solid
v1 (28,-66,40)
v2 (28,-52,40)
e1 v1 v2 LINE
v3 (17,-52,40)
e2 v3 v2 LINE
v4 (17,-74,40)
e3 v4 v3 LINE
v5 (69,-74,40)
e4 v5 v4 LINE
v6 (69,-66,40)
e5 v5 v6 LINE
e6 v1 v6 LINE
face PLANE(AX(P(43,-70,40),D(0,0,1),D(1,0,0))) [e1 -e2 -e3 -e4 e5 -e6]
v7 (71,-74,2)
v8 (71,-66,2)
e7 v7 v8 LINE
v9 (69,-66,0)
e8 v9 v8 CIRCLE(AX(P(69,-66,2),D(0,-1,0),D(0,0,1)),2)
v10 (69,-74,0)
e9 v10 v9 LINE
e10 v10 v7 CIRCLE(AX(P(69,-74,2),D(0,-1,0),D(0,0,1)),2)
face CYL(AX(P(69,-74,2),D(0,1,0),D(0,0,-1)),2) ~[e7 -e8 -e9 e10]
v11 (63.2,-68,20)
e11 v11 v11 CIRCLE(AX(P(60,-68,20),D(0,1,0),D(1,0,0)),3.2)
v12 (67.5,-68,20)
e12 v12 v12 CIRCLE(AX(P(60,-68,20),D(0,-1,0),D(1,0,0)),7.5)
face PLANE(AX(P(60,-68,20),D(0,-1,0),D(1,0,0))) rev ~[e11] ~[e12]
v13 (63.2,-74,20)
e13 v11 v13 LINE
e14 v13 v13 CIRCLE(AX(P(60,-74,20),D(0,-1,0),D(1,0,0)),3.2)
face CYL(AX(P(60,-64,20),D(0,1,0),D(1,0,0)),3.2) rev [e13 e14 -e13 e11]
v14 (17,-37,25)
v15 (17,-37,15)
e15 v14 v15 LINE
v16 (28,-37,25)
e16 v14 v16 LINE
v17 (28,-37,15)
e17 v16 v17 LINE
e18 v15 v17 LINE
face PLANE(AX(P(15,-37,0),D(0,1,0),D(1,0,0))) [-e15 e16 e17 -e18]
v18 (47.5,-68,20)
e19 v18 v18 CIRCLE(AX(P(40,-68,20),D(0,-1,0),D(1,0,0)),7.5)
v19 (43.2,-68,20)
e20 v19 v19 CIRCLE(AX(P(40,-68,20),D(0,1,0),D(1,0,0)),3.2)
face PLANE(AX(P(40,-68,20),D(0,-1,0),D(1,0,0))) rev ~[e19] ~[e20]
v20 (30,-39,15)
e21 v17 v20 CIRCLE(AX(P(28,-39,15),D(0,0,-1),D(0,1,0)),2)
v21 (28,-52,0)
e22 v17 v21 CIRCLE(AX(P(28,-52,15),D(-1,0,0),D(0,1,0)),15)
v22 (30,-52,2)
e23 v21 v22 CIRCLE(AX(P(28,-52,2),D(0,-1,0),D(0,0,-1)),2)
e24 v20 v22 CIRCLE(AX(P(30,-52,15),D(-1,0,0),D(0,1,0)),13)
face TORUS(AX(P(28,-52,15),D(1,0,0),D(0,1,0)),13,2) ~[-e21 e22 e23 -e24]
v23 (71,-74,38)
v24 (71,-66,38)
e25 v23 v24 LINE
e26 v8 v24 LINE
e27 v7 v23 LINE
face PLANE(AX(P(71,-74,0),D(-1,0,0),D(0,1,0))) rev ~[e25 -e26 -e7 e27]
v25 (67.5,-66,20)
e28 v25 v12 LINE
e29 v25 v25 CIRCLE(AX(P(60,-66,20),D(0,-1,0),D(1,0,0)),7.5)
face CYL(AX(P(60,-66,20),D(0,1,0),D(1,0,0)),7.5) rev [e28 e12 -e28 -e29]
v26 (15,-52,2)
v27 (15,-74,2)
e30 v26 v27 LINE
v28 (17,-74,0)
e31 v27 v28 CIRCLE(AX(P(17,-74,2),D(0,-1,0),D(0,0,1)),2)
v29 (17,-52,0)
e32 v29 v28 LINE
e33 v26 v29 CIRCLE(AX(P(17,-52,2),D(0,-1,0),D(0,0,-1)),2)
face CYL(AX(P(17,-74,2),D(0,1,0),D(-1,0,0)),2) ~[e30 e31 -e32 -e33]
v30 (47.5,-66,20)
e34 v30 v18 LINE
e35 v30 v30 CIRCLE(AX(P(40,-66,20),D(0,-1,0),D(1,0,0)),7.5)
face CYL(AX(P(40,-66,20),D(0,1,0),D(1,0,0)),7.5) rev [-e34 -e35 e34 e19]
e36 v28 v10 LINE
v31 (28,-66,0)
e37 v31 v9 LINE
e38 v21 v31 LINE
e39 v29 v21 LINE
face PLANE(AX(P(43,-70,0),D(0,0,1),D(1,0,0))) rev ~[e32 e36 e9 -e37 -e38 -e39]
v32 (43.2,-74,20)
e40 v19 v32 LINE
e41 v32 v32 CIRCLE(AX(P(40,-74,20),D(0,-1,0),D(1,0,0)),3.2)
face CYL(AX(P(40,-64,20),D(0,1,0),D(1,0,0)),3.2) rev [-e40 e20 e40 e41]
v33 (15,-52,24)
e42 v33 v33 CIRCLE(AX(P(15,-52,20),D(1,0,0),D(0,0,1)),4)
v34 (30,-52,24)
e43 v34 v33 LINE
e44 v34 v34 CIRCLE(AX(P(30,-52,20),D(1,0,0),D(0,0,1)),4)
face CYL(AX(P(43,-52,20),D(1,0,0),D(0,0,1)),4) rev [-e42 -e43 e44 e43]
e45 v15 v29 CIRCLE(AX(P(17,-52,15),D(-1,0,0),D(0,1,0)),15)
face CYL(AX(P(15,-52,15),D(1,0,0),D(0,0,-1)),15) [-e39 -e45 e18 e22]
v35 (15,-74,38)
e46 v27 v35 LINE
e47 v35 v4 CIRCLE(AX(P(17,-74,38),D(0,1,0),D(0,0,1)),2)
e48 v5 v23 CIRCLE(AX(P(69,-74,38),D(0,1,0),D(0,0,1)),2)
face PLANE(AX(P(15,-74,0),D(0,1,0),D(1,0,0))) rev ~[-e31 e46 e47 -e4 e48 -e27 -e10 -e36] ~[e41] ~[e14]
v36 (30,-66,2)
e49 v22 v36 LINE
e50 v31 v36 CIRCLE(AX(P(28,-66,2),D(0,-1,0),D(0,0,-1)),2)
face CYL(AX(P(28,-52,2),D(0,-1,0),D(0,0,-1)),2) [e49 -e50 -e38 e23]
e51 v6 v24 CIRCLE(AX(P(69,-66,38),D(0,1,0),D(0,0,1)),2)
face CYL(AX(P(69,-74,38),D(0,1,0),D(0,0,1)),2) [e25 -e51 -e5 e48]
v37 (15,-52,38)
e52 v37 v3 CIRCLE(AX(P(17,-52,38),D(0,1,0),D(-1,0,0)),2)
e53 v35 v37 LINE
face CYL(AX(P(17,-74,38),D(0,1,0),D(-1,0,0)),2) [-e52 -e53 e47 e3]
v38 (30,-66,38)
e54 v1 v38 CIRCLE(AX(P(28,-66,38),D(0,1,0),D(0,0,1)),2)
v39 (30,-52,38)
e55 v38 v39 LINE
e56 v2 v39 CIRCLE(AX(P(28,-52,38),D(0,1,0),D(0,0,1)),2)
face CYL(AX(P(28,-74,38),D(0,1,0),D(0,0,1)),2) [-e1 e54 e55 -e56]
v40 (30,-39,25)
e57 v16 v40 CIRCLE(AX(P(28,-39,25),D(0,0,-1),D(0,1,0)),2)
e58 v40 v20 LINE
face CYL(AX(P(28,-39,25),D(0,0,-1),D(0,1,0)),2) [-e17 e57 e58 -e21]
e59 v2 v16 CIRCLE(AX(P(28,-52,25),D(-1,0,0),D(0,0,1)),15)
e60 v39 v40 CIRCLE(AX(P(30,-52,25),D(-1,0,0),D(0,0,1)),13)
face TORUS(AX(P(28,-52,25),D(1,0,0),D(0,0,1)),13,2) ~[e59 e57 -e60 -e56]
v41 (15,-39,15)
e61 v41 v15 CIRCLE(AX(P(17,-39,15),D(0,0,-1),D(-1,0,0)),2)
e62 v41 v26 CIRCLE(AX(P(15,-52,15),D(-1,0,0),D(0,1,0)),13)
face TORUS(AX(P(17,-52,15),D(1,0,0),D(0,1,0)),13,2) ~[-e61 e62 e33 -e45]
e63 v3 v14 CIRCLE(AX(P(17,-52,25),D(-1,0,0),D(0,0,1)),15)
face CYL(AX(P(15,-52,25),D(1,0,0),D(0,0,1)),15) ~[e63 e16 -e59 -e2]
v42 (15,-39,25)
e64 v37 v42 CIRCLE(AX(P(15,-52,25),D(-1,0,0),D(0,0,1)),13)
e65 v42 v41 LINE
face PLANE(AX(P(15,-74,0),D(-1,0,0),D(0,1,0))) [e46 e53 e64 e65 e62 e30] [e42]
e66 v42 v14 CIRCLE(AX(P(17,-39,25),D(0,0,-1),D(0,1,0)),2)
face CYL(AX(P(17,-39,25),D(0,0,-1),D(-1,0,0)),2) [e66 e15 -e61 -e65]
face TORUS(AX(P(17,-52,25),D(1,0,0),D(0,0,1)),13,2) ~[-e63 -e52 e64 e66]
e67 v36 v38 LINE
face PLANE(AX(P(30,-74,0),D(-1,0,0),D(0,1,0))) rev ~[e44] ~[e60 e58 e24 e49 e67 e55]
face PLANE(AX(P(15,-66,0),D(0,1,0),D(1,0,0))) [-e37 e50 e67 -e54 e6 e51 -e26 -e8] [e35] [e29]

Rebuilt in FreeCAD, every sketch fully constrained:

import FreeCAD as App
import Part
import Sketcher
Q = App.Units.Quantity


def edges_at(feature, points):
    """Names of the edges that pass closest to the given points."""
    edges = feature.Shape.Edges
    near = lambda p: min(range(len(edges)), key=lambda i: edges[i].distToShape(Part.Vertex(*p))[0])
    return sorted({f"Edge{near(p) + 1}" for p in points})


def add_polygon(sketch, points):
    """Adds a closed chain of lines whose ends are joined by coincident constraints."""
    first, n = sketch.GeometryCount, len(points)
    for a, b in zip(points, points[1:] + points[:1]):
        sketch.addGeometry(Part.LineSegment(App.Vector(*a, 0), App.Vector(*b, 0)), False)
    for i in range(n):
        sketch.addConstraint(Sketcher.Constraint("Coincident", first + i, 2, first + (i + 1) % n, 1))

doc = App.newDocument("Part")
params = doc.addObject("Spreadsheet::Sheet", "Params")
for row, (alias, value) in enumerate([
    ("sketch1_diameter", "8 mm"),
    ("pad1_length", "81 mm"),
    ("sketch2_width", "15 mm"),
    ("sketch2_height", "37 mm"),
    ("pad2_length", "40 mm"),
    ("fillet_radius", "15 mm"),
    ("fillet2_radius", "2 mm"),
    ("sketch3_diameter", "6.4 mm"),
    ("pad3_length", "10 mm"),
    ("sketch4_diameter", "6.4 mm"),
    ("pad4_length", "10 mm"),
    ("sketch5_diameter", "15 mm"),
    ("pad5_length", "2 mm"),
    ("sketch6_diameter", "15 mm"),
    ("pad6_length", "2 mm"),
    ("sketch7_width", "56 mm"),
    ("sketch7_height", "8 mm"),
    ("pad7_length", "40 mm"),
    ("fillet3_radius", "2 mm"),
], start=1):
    params.set(f"A{row}", alias)
    params.set(f"B{row}", "=" + value)
    params.setAlias(f"B{row}", alias)

body = doc.addObject("PartDesign::Body", "Body")

sketch1 = doc.addObject("Sketcher::SketchObject", "Sketch")
body.addObject(sketch1)
sketch1.AttachmentSupport = (doc.YZ_Plane, [""])
sketch1.MapMode = "FlatFace"
sketch1.AttachmentOffset = App.Placement(App.Vector(0, 0, 43), App.Rotation())
sketch1.addGeometry(Part.Circle(App.Vector(-52, 20, 0), App.Vector(0, 0, 1), 4), False)
sketch1.addConstraint([
    Sketcher.Constraint("Diameter", 0, Q("8 mm")),
    Sketcher.Constraint("DistanceX", 0, 3, -1, 1, Q("52 mm")),
    Sketcher.Constraint("DistanceY", -1, 1, 0, 3, Q("20 mm")),
])
sketch1.setExpression("Constraints[0]", "Params.sketch1_diameter")
pad1 = doc.addObject("PartDesign::Pad", "Pad")
body.addObject(pad1)
pad1.Profile = sketch1
pad1.setExpression("Length", "Params.pad1_length")
pad1.Reversed = True
body2 = doc.addObject("PartDesign::Body", "Body001")

sketch2 = doc.addObject("Sketcher::SketchObject", "Sketch001")
body2.addObject(sketch2)
sketch2.AttachmentSupport = (doc.getObject("XY_Plane001"), [""])
sketch2.MapMode = "FlatFace"
add_polygon(sketch2, [(15, -37), (15, -74), (30, -74), (30, -37)])
sketch2.addConstraint([
    Sketcher.Constraint("Vertical", 0),
    Sketcher.Constraint("Horizontal", 1),
    Sketcher.Constraint("Vertical", 2),
    Sketcher.Constraint("Horizontal", 3),
    Sketcher.Constraint("DistanceX", 1, 1, 1, 2, Q("15 mm")),
    Sketcher.Constraint("DistanceY", 0, 2, 0, 1, Q("37 mm")),
    Sketcher.Constraint("DistanceX", -1, 1, 0, 2, Q("15 mm")),
    Sketcher.Constraint("DistanceY", 0, 2, -1, 1, Q("74 mm")),
])
sketch2.setExpression("Constraints[8]", "Params.sketch2_width")
sketch2.setExpression("Constraints[9]", "Params.sketch2_height")
pad2 = doc.addObject("PartDesign::Pad", "Pad001")
body2.addObject(pad2)
pad2.Profile = sketch2
pad2.setExpression("Length", "Params.pad2_length")
doc.recompute()

boolean = doc.addObject("PartDesign::Boolean", "Boolean")
body2.addObject(boolean)
boolean.Type = "Cut"
boolean.addObjects([body])
doc.recompute()

fillet = doc.addObject("PartDesign::Fillet", "Fillet")
body2.addObject(fillet)
fillet.Base = (boolean, edges_at(boolean, [(22.5, -37, 40), (22.5, -37, 0)]))
fillet.setExpression("Radius", "Params.fillet_radius")
doc.recompute()

fillet2 = doc.addObject("PartDesign::Fillet", "Fillet001")
body2.addObject(fillet2)
fillet2.Base = (fillet, edges_at(fillet, [
    (15, -63, 40),
    (15, -41.393, 35.607),
    (15, -37, 20),
    (15, -63, 0),
    (15, -41.393, 4.393),
    (30, -63, 40),
    (30, -41.393, 35.607),
    (30, -37, 20),
    (30, -63, 0),
    (30, -41.393, 4.393),
]))
fillet2.setExpression("Radius", "Params.fillet2_radius")
body3 = doc.addObject("PartDesign::Body", "Body002")

sketch3 = doc.addObject("Sketcher::SketchObject", "Sketch002")
body3.addObject(sketch3)
sketch3.AttachmentSupport = (doc.getObject("XZ_Plane002"), [""])
sketch3.MapMode = "FlatFace"
sketch3.AttachmentOffset = App.Placement(App.Vector(0, 0, 64), App.Rotation())
sketch3.addGeometry(Part.Circle(App.Vector(40, 20, 0), App.Vector(0, 0, 1), 3.2), False)
sketch3.addConstraint([
    Sketcher.Constraint("Diameter", 0, Q("6.4 mm")),
    Sketcher.Constraint("DistanceX", -1, 1, 0, 3, Q("40 mm")),
    Sketcher.Constraint("DistanceY", -1, 1, 0, 3, Q("20 mm")),
])
sketch3.setExpression("Constraints[0]", "Params.sketch3_diameter")
pad3 = doc.addObject("PartDesign::Pad", "Pad002")
body3.addObject(pad3)
pad3.Profile = sketch3
pad3.setExpression("Length", "Params.pad3_length")
body4 = doc.addObject("PartDesign::Body", "Body003")

sketch4 = doc.addObject("Sketcher::SketchObject", "Sketch003")
body4.addObject(sketch4)
sketch4.AttachmentSupport = (doc.getObject("XZ_Plane003"), [""])
sketch4.MapMode = "FlatFace"
sketch4.AttachmentOffset = App.Placement(App.Vector(0, 0, 64), App.Rotation())
sketch4.addGeometry(Part.Circle(App.Vector(60, 20, 0), App.Vector(0, 0, 1), 3.2), False)
sketch4.addConstraint([
    Sketcher.Constraint("Diameter", 0, Q("6.4 mm")),
    Sketcher.Constraint("DistanceX", -1, 1, 0, 3, Q("60 mm")),
    Sketcher.Constraint("DistanceY", -1, 1, 0, 3, Q("20 mm")),
])
sketch4.setExpression("Constraints[0]", "Params.sketch4_diameter")
pad4 = doc.addObject("PartDesign::Pad", "Pad003")
body4.addObject(pad4)
pad4.Profile = sketch4
pad4.setExpression("Length", "Params.pad4_length")
body5 = doc.addObject("PartDesign::Body", "Body004")

sketch5 = doc.addObject("Sketcher::SketchObject", "Sketch004")
body5.addObject(sketch5)
sketch5.AttachmentSupport = (doc.getObject("XZ_Plane004"), [""])
sketch5.MapMode = "FlatFace"
sketch5.AttachmentOffset = App.Placement(App.Vector(0, 0, 66), App.Rotation())
sketch5.addGeometry(Part.Circle(App.Vector(60, 20, 0), App.Vector(0, 0, 1), 7.5), False)
sketch5.addConstraint([
    Sketcher.Constraint("Diameter", 0, Q("15 mm")),
    Sketcher.Constraint("DistanceX", -1, 1, 0, 3, Q("60 mm")),
    Sketcher.Constraint("DistanceY", -1, 1, 0, 3, Q("20 mm")),
])
sketch5.setExpression("Constraints[0]", "Params.sketch5_diameter")
pad5 = doc.addObject("PartDesign::Pad", "Pad004")
body5.addObject(pad5)
pad5.Profile = sketch5
pad5.setExpression("Length", "Params.pad5_length")
body6 = doc.addObject("PartDesign::Body", "Body005")
body6.AllowCompound = True

sketch6 = doc.addObject("Sketcher::SketchObject", "Sketch005")
body6.addObject(sketch6)
sketch6.AttachmentSupport = (doc.getObject("XZ_Plane005"), [""])
sketch6.MapMode = "FlatFace"
sketch6.AttachmentOffset = App.Placement(App.Vector(0, 0, 66), App.Rotation())
sketch6.addGeometry(Part.Circle(App.Vector(40, 20, 0), App.Vector(0, 0, 1), 7.5), False)
sketch6.addConstraint([
    Sketcher.Constraint("Diameter", 0, Q("15 mm")),
    Sketcher.Constraint("DistanceX", -1, 1, 0, 3, Q("40 mm")),
    Sketcher.Constraint("DistanceY", -1, 1, 0, 3, Q("20 mm")),
])
sketch6.setExpression("Constraints[0]", "Params.sketch6_diameter")
pad6 = doc.addObject("PartDesign::Pad", "Pad005")
body6.addObject(pad6)
pad6.Profile = sketch6
pad6.setExpression("Length", "Params.pad6_length")
doc.recompute()

boolean2 = doc.addObject("PartDesign::Boolean", "Boolean001")
body6.addObject(boolean2)
boolean2.Type = "Fuse"
boolean2.addObjects([body3])
doc.recompute()

boolean3 = doc.addObject("PartDesign::Boolean", "Boolean002")
body6.addObject(boolean3)
boolean3.Type = "Fuse"
boolean3.addObjects([body4])
doc.recompute()

boolean4 = doc.addObject("PartDesign::Boolean", "Boolean003")
body6.addObject(boolean4)
boolean4.Type = "Fuse"
boolean4.addObjects([body5])
body7 = doc.addObject("PartDesign::Body", "Body006")

sketch7 = doc.addObject("Sketcher::SketchObject", "Sketch006")
body7.addObject(sketch7)
sketch7.AttachmentSupport = (doc.getObject("XY_Plane006"), [""])
sketch7.MapMode = "FlatFace"
add_polygon(sketch7, [(15, -66), (15, -74), (71, -74), (71, -66)])
sketch7.addConstraint([
    Sketcher.Constraint("Vertical", 0),
    Sketcher.Constraint("Horizontal", 1),
    Sketcher.Constraint("Vertical", 2),
    Sketcher.Constraint("Horizontal", 3),
    Sketcher.Constraint("DistanceX", 1, 1, 1, 2, Q("56 mm")),
    Sketcher.Constraint("DistanceY", 0, 2, 0, 1, Q("8 mm")),
    Sketcher.Constraint("DistanceX", -1, 1, 0, 2, Q("15 mm")),
    Sketcher.Constraint("DistanceY", 0, 2, -1, 1, Q("74 mm")),
])
sketch7.setExpression("Constraints[8]", "Params.sketch7_width")
sketch7.setExpression("Constraints[9]", "Params.sketch7_height")
pad7 = doc.addObject("PartDesign::Pad", "Pad006")
body7.addObject(pad7)
pad7.Profile = sketch7
pad7.setExpression("Length", "Params.pad7_length")
doc.recompute()

boolean5 = doc.addObject("PartDesign::Boolean", "Boolean004")
body7.addObject(boolean5)
boolean5.Type = "Cut"
boolean5.addObjects([body6])
doc.recompute()

fillet3 = doc.addObject("PartDesign::Fillet", "Fillet002")
body7.addObject(fillet3)
fillet3.Base = (boolean5, edges_at(boolean5, [
    (15, -70, 40),
    (15, -70, 0),
    (71, -70, 40),
    (71, -70, 0),
]))
fillet3.setExpression("Radius", "Params.fillet3_radius")
doc.recompute()

boolean6 = doc.addObject("PartDesign::Boolean", "Boolean005")
body7.addObject(boolean6)
boolean6.Type = "Fuse"
boolean6.addObjects([body2])

doc.recompute()
